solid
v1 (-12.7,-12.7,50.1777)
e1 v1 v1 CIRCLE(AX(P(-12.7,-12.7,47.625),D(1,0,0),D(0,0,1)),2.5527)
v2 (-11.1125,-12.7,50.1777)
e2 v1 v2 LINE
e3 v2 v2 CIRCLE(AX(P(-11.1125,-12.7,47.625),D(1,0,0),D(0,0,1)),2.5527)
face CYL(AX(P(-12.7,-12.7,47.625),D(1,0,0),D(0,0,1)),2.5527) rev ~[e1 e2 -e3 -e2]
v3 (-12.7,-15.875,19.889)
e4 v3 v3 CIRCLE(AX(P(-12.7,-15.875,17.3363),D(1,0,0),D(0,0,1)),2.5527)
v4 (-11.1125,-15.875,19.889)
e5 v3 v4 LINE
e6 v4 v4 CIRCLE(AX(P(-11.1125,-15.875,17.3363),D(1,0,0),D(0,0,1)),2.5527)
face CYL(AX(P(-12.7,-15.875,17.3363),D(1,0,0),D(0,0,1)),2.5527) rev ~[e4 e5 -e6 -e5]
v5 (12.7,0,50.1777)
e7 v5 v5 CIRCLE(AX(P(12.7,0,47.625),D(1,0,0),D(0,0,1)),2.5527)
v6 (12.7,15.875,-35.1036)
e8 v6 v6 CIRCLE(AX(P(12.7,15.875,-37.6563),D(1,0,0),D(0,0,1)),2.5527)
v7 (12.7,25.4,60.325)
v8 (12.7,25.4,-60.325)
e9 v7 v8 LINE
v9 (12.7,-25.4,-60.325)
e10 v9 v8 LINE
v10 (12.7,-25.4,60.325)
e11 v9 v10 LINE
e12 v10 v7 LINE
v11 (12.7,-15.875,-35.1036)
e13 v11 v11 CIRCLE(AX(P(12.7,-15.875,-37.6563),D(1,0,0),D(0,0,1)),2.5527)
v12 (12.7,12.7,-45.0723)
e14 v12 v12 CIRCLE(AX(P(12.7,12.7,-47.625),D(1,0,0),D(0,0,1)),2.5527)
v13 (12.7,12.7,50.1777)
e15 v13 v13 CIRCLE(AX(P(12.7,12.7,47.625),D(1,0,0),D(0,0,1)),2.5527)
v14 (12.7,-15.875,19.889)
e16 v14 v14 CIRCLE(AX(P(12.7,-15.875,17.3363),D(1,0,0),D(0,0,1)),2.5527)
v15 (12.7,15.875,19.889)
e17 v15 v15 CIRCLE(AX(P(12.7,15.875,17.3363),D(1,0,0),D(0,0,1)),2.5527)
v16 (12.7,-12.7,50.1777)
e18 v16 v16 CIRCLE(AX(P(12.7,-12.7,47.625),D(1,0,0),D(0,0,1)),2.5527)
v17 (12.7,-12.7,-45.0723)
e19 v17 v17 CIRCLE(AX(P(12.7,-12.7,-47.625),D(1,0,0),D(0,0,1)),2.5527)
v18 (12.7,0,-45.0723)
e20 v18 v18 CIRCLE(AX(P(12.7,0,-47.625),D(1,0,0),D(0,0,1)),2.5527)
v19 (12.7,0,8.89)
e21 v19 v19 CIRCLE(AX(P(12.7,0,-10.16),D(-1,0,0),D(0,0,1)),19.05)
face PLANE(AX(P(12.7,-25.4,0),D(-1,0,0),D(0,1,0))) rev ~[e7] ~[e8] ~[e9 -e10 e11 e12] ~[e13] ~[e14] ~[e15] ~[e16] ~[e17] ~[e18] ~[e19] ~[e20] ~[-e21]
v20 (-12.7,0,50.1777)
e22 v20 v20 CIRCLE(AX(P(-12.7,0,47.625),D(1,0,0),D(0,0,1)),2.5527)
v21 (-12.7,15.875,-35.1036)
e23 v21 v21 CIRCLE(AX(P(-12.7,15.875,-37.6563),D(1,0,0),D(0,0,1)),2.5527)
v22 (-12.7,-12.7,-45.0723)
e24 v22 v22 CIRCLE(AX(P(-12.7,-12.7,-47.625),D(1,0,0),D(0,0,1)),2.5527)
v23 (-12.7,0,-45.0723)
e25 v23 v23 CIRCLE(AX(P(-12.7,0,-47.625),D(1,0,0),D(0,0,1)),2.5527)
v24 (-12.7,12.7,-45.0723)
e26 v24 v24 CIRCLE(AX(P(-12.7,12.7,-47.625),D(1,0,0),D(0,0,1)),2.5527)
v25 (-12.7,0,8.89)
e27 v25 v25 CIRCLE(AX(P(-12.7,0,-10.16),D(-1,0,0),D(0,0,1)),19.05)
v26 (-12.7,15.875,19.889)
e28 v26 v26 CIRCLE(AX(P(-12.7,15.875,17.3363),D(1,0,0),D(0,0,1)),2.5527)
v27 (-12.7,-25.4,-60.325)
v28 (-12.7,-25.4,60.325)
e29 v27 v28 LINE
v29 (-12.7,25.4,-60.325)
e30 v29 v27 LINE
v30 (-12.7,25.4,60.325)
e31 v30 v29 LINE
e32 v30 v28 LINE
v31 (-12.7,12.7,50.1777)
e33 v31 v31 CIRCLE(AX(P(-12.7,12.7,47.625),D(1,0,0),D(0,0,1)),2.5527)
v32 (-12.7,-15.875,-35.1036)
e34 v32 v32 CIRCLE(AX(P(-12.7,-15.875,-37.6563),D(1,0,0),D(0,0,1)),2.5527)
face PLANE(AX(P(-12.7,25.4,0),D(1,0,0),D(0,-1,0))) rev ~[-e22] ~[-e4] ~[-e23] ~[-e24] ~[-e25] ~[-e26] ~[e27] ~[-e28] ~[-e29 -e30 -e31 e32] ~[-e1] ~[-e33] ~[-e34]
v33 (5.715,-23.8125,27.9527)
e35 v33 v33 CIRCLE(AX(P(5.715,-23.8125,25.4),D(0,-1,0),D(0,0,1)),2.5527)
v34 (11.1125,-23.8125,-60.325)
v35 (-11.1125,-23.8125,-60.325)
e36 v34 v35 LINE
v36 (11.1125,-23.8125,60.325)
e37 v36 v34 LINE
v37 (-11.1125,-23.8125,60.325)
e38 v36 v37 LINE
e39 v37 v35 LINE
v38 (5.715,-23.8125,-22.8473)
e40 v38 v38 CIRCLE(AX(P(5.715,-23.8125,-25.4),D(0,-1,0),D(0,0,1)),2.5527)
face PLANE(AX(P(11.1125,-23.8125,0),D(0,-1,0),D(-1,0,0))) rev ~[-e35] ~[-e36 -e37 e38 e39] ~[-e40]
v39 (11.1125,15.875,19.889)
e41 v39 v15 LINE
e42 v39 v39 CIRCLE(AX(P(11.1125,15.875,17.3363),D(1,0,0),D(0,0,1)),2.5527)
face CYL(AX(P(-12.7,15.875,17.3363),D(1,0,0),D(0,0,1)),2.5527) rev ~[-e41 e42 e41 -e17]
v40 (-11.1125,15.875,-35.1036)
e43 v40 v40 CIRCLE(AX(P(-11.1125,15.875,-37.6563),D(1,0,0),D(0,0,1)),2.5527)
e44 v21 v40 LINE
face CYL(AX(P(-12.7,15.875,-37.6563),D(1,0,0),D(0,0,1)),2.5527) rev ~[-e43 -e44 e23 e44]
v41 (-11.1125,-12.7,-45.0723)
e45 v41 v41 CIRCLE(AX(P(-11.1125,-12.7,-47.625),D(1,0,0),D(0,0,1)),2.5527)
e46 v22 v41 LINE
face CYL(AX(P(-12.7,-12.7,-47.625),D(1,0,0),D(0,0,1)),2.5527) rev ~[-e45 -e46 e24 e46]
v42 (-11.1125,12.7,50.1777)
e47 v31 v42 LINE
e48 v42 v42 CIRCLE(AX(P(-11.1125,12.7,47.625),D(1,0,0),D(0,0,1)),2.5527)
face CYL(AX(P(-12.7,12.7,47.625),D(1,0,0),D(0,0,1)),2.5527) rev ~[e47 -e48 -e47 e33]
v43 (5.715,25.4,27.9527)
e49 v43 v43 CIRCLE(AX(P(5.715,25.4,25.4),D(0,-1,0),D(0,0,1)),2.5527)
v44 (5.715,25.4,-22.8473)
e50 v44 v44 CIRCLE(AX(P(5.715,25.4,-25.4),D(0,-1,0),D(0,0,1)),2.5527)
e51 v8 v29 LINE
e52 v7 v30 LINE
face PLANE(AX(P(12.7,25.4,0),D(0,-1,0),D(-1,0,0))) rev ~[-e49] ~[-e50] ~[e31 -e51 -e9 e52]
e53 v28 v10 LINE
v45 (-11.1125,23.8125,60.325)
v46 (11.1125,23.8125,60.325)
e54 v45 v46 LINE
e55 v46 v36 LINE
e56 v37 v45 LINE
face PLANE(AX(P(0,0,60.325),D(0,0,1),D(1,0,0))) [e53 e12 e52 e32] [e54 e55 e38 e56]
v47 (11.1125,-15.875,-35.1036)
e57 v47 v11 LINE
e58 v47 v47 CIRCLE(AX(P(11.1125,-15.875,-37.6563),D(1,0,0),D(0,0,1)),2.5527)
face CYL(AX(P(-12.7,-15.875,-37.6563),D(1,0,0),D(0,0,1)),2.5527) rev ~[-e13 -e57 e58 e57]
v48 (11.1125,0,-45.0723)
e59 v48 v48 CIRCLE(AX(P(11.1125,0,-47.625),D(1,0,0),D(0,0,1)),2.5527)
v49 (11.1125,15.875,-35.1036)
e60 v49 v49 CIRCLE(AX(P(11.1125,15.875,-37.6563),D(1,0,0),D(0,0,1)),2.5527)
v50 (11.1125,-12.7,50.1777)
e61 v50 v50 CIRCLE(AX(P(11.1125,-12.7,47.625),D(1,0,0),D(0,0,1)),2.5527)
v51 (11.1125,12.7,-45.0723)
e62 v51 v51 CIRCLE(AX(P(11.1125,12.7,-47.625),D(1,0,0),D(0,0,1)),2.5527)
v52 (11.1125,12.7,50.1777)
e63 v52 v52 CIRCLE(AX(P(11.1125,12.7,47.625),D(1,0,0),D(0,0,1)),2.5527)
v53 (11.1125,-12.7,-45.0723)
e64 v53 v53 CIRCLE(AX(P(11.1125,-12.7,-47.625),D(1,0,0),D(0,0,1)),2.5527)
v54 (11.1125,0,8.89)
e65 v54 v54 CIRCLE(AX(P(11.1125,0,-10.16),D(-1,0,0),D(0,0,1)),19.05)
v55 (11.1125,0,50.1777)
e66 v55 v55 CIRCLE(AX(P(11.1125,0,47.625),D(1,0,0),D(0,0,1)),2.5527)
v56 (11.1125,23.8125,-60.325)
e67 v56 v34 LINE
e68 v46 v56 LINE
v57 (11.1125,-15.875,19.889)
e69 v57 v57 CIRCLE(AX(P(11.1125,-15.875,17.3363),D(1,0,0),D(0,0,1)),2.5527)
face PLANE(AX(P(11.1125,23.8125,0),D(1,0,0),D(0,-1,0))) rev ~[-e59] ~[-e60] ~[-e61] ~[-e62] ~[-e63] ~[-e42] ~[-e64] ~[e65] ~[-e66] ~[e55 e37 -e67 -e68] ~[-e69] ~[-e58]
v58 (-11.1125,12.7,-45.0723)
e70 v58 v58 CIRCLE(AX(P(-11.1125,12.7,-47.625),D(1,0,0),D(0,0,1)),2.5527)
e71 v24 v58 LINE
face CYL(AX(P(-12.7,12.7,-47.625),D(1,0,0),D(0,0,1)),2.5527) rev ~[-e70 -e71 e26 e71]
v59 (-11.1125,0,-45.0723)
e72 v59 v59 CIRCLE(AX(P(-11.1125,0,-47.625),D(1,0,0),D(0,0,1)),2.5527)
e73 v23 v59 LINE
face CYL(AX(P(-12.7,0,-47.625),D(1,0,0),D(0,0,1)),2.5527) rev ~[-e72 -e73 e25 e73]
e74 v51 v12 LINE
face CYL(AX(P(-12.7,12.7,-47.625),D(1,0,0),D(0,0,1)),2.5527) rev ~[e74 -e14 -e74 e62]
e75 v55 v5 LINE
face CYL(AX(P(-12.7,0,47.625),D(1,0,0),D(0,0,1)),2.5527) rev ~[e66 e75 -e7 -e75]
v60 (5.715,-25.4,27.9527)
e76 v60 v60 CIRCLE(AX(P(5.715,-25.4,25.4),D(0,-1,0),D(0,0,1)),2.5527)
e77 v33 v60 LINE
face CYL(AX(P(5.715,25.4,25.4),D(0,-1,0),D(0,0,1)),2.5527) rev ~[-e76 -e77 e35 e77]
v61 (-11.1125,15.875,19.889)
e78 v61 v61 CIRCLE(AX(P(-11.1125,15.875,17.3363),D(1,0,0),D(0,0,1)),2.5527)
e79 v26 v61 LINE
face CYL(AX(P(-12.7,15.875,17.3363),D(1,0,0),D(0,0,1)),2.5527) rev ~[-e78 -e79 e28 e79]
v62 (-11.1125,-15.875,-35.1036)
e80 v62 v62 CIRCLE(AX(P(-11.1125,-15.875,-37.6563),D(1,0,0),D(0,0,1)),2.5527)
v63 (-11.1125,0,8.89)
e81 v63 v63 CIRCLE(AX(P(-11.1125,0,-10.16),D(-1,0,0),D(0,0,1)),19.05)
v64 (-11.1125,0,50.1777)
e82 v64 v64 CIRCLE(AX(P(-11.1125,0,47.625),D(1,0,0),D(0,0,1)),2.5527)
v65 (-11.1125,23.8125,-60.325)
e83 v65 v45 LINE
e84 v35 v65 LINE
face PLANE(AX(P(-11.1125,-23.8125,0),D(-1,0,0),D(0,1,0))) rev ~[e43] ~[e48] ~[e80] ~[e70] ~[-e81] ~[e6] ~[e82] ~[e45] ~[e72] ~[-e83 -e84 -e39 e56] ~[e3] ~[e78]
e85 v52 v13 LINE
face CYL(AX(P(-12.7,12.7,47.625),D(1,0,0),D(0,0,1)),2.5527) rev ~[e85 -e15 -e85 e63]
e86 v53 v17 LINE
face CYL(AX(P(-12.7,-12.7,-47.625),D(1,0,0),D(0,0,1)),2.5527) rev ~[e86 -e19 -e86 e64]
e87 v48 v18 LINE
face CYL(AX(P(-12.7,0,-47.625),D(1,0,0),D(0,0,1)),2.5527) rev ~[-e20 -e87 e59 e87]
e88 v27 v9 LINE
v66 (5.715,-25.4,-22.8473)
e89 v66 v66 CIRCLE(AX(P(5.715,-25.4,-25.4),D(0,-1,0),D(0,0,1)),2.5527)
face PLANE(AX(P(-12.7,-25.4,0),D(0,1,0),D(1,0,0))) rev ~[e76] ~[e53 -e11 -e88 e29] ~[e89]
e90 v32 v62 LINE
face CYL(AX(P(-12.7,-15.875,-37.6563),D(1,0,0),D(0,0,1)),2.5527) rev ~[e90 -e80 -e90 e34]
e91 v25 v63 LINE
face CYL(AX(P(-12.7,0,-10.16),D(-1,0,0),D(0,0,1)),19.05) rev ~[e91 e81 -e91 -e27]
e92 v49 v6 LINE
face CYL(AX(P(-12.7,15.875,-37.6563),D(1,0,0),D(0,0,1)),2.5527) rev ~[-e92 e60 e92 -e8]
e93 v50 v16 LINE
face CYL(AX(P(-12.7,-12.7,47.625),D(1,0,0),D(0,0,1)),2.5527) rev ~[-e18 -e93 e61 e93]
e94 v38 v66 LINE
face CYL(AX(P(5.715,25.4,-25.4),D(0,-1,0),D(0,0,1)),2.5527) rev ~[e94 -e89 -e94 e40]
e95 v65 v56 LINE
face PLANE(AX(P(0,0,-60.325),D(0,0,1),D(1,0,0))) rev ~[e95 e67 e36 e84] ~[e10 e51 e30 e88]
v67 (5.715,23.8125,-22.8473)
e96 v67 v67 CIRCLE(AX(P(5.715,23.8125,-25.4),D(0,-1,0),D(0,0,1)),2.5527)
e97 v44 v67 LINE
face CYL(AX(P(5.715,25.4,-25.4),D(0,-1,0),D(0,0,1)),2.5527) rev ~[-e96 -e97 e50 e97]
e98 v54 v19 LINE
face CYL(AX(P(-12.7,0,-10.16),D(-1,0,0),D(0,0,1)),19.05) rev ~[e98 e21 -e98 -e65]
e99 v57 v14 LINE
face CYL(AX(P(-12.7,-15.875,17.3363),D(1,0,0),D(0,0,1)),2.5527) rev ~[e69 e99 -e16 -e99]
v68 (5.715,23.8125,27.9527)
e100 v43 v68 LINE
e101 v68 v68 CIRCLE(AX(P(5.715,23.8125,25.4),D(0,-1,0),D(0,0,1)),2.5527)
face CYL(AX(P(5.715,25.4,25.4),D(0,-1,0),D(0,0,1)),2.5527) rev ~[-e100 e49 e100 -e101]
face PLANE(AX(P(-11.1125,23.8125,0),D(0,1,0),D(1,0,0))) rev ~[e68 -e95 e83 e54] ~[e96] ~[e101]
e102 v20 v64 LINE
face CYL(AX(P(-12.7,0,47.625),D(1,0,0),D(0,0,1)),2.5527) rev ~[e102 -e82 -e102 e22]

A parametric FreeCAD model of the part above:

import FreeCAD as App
import Part
import Sketcher
Q = App.Units.Quantity

doc = App.newDocument("Part")
body = doc.addObject("PartDesign::Body", "Body")

# Sketch on XY plane
sketch1 = body.newObject("Sketcher::SketchObject", "Sketch")
sketch1.AttachmentSupport = (doc.getObject("XY_Plane"), [""])
sketch1.MapMode = "FlatFace"
sketch1.addGeometry(Part.LineSegment(App.Vector(-13, 25, 0), App.Vector(-13, -25, 0)), False)
sketch1.addGeometry(Part.LineSegment(App.Vector(-13, -25, 0), App.Vector(13, -25, 0)), False)
sketch1.addGeometry(Part.LineSegment(App.Vector(13, -25, 0), App.Vector(13, 25, 0)), False)
sketch1.addGeometry(Part.LineSegment(App.Vector(13, 25, 0), App.Vector(-13, 25, 0)), False)
sketch1.addGeometry(Part.LineSegment(App.Vector(-11, -24, 0), App.Vector(-11, 24, 0)), False)
sketch1.addGeometry(Part.LineSegment(App.Vector(-11, 24, 0), App.Vector(11, 24, 0)), False)
sketch1.addGeometry(Part.LineSegment(App.Vector(11, 24, 0), App.Vector(11, -24, 0)), False)
sketch1.addGeometry(Part.LineSegment(App.Vector(11, -24, 0), App.Vector(-11, -24, 0)), False)
sketch1.addConstraint(Sketcher.Constraint("Coincident", 0, 2, 1, 1))
sketch1.addConstraint(Sketcher.Constraint("Coincident", 1, 2, 2, 1))
sketch1.addConstraint(Sketcher.Constraint("Coincident", 2, 2, 3, 1))
sketch1.addConstraint(Sketcher.Constraint("Coincident", 3, 2, 0, 1))
sketch1.addConstraint(Sketcher.Constraint("Coincident", 4, 2, 5, 1))
sketch1.addConstraint(Sketcher.Constraint("Coincident", 5, 2, 6, 1))
sketch1.addConstraint(Sketcher.Constraint("Coincident", 6, 2, 7, 1))
sketch1.addConstraint(Sketcher.Constraint("Coincident", 7, 2, 4, 1))
sketch1.addConstraint(Sketcher.Constraint("Vertical", 0))
sketch1.addConstraint(Sketcher.Constraint("Horizontal", 1))
sketch1.addConstraint(Sketcher.Constraint("Vertical", 2))
sketch1.addConstraint(Sketcher.Constraint("Horizontal", 3))
sketch1.addConstraint(Sketcher.Constraint("Vertical", 4))
sketch1.addConstraint(Sketcher.Constraint("Horizontal", 5))
sketch1.addConstraint(Sketcher.Constraint("Vertical", 6))
sketch1.addConstraint(Sketcher.Constraint("Horizontal", 7))
sketch1.addConstraint(Sketcher.Constraint("Symmetric", 0, 2, 2, 2, -1, 1))
sketch1.addConstraint(Sketcher.Constraint("Symmetric", 4, 2, 6, 2, -1, 1))
sketch1.addConstraint(Sketcher.Constraint("DistanceX", 1, 1, 1, 2, Q("1 in")))
sketch1.addConstraint(Sketcher.Constraint("DistanceY", 0, 2, 0, 1, Q("2 in")))
sketch1.addConstraint(Sketcher.Constraint("DistanceX", 3, 2, 4, 2, Q("0.0625 in")))
sketch1.addConstraint(Sketcher.Constraint("DistanceY", 4, 2, 3, 2, Q("0.0625 in")))
pad1 = body.newObject("PartDesign::Pad", "Pad")
pad1.Profile = sketch1
pad1.Length = Q("4.75 in")
pad1.Midplane = True

# Sketch on YZ plane
sketch2 = body.newObject("Sketcher::SketchObject", "Sketch001")
sketch2.AttachmentSupport = (doc.getObject("YZ_Plane"), [""])
sketch2.MapMode = "FlatFace"
sketch2.AttachmentOffset = App.Placement(App.Vector(0, 0, -0.5 * 25.4), App.Rotation())
sketch2.addGeometry(Part.Circle(App.Vector(12.7, -47.6, 0), App.Vector(0, 0, 1), 2.6), False)
sketch2.addGeometry(Part.Circle(App.Vector(0, -47.6, 0), App.Vector(0, 0, 1), 2.6), False)
sketch2.addGeometry(Part.Circle(App.Vector(-12.7, -47.6, 0), App.Vector(0, 0, 1), 2.6), False)
sketch2.addGeometry(Part.Circle(App.Vector(-12.7, 47.6, 0), App.Vector(0, 0, 1), 2.6), False)
sketch2.addGeometry(Part.Circle(App.Vector(0, 47.6, 0), App.Vector(0, 0, 1), 2.6), False)
sketch2.addGeometry(Part.Circle(App.Vector(12.7, 47.6, 0), App.Vector(0, 0, 1), 2.6), False)
sketch2.addGeometry(Part.Circle(App.Vector(15.9, 17.3, 0), App.Vector(0, 0, 1), 2.6), False)
sketch2.addGeometry(Part.Circle(App.Vector(-15.9, 17.3, 0), App.Vector(0, 0, 1), 2.6), False)
sketch2.addGeometry(Part.Circle(App.Vector(-15.9, -37.7, 0), App.Vector(0, 0, 1), 2.6), False)
sketch2.addGeometry(Part.Circle(App.Vector(15.9, -37.7, 0), App.Vector(0, 0, 1), 2.6), False)
sketch2.addConstraint(Sketcher.Constraint("Equal", 0, 1))
sketch2.addConstraint(Sketcher.Constraint("Equal", 1, 2))
sketch2.addConstraint(Sketcher.Constraint("Equal", 2, 3))
sketch2.addConstraint(Sketcher.Constraint("Equal", 3, 4))
sketch2.addConstraint(Sketcher.Constraint("Equal", 4, 5))
sketch2.addConstraint(Sketcher.Constraint("Equal", 5, 6))
sketch2.addConstraint(Sketcher.Constraint("Equal", 6, 7))
sketch2.addConstraint(Sketcher.Constraint("Equal", 7, 8))
sketch2.addConstraint(Sketcher.Constraint("Equal", 8, 9))
sketch2.addConstraint(Sketcher.Constraint("Symmetric", 0, 3, 3, 3, -1, 1))
sketch2.addConstraint(Sketcher.Constraint("Symmetric", 1, 3, 4, 3, -1, 1))
sketch2.addConstraint(Sketcher.Constraint("Symmetric", 2, 3, 5, 3, -1, 1))
sketch2.addConstraint(Sketcher.Constraint("Symmetric", 0, 3, 2, 3, -2))
sketch2.addConstraint(Sketcher.Constraint("Symmetric", 6, 3, 7, 3, -2))
sketch2.addConstraint(Sketcher.Constraint("Symmetric", 8, 3, 9, 3, -2))
sketch2.addConstraint(Sketcher.Constraint("PointOnObject", 1, 3, -2))
sketch2.addConstraint(Sketcher.Constraint("Horizontal", 0, 3, 1, 3))
sketch2.addConstraint(Sketcher.Constraint("Vertical", 7, 3, 8, 3))
sketch2.addConstraint(Sketcher.Constraint("Diameter", 0, Q("0.201 in")))
sketch2.addConstraint(Sketcher.Constraint("DistanceX", 2, 3, 0, 3, Q("1 in")))
sketch2.addConstraint(Sketcher.Constraint("DistanceY", 2, 3, 3, 3, Q("3.75 in")))
sketch2.addConstraint(Sketcher.Constraint("DistanceX", 7, 3, 6, 3, Q("1.25 in")))
sketch2.addConstraint(Sketcher.Constraint("DistanceY", -1, 1, 6, 3, 17.3363))
sketch2.addConstraint(Sketcher.Constraint("DistanceY", 8, 3, -1, 1, 37.6563))
doc.recompute()
hole = body.newObject("PartDesign::Hole", "Hole")
hole.Profile = sketch2
hole.ThreadType = "None"
hole.Diameter = Q("0.201 in")
hole.DepthType = "ThroughAll"
hole.Reversed = True

# Sketch on YZ plane
sketch3 = body.newObject("Sketcher::SketchObject", "Sketch002")
sketch3.AttachmentSupport = (doc.getObject("YZ_Plane"), [""])
sketch3.MapMode = "FlatFace"
sketch3.AttachmentOffset = App.Placement(App.Vector(0, 0, -0.5 * 25.4), App.Rotation())
sketch3.addGeometry(Part.Circle(App.Vector(0, -10, 0), App.Vector(0, 0, 1), 19), False)
sketch3.addConstraint(Sketcher.Constraint("PointOnObject", 0, 3, -2))
sketch3.addConstraint(Sketcher.Constraint("Diameter", 0, Q("1.5 in")))
sketch3.addConstraint(Sketcher.Constraint("DistanceY", 0, 3, -1, 1, Q("0.4 in")))
pocket1 = body.newObject("PartDesign::Pocket", "Pocket")
pocket1.Profile = sketch3
pocket1.Type = "ThroughAll"
pocket1.Reversed = True

# Sketch on XZ plane
sketch4 = body.newObject("Sketcher::SketchObject", "Sketch003")
sketch4.AttachmentSupport = (doc.getObject("XZ_Plane"), [""])
sketch4.MapMode = "FlatFace"
sketch4.AttachmentOffset = App.Placement(App.Vector(0, 0, -1 * 25.4), App.Rotation())
sketch4.addGeometry(Part.Circle(App.Vector(5.7, -25.4, 0), App.Vector(0, 0, 1), 2.6), False)
sketch4.addGeometry(Part.Circle(App.Vector(5.7, 25.4, 0), App.Vector(0, 0, 1), 2.6), False)
sketch4.addConstraint(Sketcher.Constraint("Equal", 0, 1))
sketch4.addConstraint(Sketcher.Constraint("Symmetric", 0, 3, 1, 3, -1))
sketch4.addConstraint(Sketcher.Constraint("Diameter", 0, Q("0.201 in")))
sketch4.addConstraint(Sketcher.Constraint("DistanceY", 0, 3, -1, 1, Q("1 in")))
sketch4.addConstraint(Sketcher.Constraint("DistanceX", -1, 1, 0, 3, Q("0.225 in")))
doc.recompute()
hole2 = body.newObject("PartDesign::Hole", "Hole001")
hole2.Profile = sketch4
hole2.ThreadType = "None"
hole2.Diameter = Q("0.201 in")
hole2.DepthType = "ThroughAll"
hole2.Reversed = True

doc.recompute()
